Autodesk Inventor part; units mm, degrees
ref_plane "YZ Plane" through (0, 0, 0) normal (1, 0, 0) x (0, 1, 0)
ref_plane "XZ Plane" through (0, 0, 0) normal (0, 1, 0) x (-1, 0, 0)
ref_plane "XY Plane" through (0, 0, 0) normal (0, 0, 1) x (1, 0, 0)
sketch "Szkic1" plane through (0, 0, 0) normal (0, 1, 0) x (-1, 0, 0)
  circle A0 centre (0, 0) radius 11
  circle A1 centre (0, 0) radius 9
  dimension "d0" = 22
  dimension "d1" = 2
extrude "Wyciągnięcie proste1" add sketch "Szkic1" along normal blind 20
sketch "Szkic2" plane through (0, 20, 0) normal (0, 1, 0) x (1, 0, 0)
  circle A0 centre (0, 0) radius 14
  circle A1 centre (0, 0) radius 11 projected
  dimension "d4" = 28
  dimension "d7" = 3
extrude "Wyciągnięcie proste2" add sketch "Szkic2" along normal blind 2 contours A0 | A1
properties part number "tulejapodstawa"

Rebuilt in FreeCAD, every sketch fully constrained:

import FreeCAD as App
import Part
import Sketcher
from FreeCAD import Vector
Q = App.Units.Quantity

doc = App.newDocument("Part")
body = doc.addObject("PartDesign::Body", "Body")

sketch1 = doc.addObject("Sketcher::SketchObject", "Sketch")
body.addObject(sketch1)
sketch1.AttachmentSupport = (doc.XZ_Plane, [""])
sketch1.MapMode = "FlatFace"
sketch1.addGeometry(Part.Circle(Vector(0, 0, 0), Vector(0, 0, 1), 11), False)
sketch1.addGeometry(Part.Circle(Vector(0, 0, 0), Vector(0, 0, 1), 9), False)
sketch1.addConstraint(Sketcher.Constraint("Coincident", 0, 3, -1, 1))
sketch1.addConstraint(Sketcher.Constraint("Coincident", 1, 3, -1, 1))
sketch1.addConstraint(Sketcher.Constraint("Diameter", 0, Q("22 mm")))
sketch1.addConstraint(Sketcher.Constraint("Diameter", 1, Q("18 mm")))
pad1 = doc.addObject("PartDesign::Pad", "Pad")
body.addObject(pad1)
pad1.Profile = sketch1
pad1.Length = 20
pad1.Reversed = True

sketch2 = doc.addObject("Sketcher::SketchObject", "Sketch001")
body.addObject(sketch2)
sketch2.AttachmentSupport = (doc.XZ_Plane, [""])
sketch2.MapMode = "FlatFace"
sketch2.AttachmentOffset = App.Placement(Vector(0, 0, -20), App.Rotation())
sketch2.addGeometry(Part.Circle(Vector(0, 0, 0), Vector(0, 0, 1), 14), False)
sketch2.addConstraint(Sketcher.Constraint("Coincident", 0, 3, -1, 1))
sketch2.addConstraint(Sketcher.Constraint("Diameter", 0, Q("28 mm")))
pad2 = doc.addObject("PartDesign::Pad", "Pad001")
body.addObject(pad2)
pad2.Profile = sketch2
pad2.Length = 2
pad2.Reversed = True

doc.recompute()
